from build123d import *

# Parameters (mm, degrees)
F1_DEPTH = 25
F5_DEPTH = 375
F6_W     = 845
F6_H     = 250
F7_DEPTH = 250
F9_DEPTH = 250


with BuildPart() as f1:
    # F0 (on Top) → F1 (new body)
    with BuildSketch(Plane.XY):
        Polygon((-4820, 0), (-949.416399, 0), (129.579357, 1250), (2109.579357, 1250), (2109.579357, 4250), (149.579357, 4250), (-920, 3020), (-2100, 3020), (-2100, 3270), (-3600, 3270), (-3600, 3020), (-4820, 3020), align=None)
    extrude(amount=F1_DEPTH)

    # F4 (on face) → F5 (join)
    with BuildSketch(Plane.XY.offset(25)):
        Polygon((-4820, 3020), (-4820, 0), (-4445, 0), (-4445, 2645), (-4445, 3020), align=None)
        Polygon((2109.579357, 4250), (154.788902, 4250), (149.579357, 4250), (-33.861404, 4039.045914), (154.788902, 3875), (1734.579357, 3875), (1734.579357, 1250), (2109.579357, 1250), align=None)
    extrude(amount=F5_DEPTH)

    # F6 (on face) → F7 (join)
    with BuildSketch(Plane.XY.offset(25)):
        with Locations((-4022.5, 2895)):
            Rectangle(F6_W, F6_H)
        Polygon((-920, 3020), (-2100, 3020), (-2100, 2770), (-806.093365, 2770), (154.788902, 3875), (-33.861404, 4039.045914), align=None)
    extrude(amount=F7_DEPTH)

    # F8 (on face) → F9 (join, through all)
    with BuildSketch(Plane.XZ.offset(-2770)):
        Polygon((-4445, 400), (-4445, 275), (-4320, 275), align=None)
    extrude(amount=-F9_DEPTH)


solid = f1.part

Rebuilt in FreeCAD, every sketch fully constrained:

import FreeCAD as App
import Part
import Sketcher

doc = App.newDocument("Part")
body = doc.addObject("PartDesign::Body", "Body")

# Sketch on XY plane
sketch1 = body.newObject("Sketcher::SketchObject", "Sketch")
sketch1.AttachmentSupport = (doc.getObject("XY_Plane"), [""])
sketch1.MapMode = "FlatFace"
sketch1.addGeometry([
    Part.LineSegment(App.Vector(-4820, 0, 0), App.Vector(-949.416399, 0, 0)),  # 0
    Part.LineSegment(App.Vector(-949.416399, 0, 0), App.Vector(129.579357, 1250, 0)),  # 1
    Part.LineSegment(App.Vector(129.579357, 1250, 0), App.Vector(2109.579357, 1250, 0)),  # 2
    Part.LineSegment(App.Vector(2109.579357, 1250, 0), App.Vector(2109.579357, 4250, 0)),  # 3
    Part.LineSegment(App.Vector(2109.579357, 4250, 0), App.Vector(149.579357, 4250, 0)),  # 4
    Part.LineSegment(App.Vector(149.579357, 4250, 0), App.Vector(-920, 3020, 0)),  # 5
    Part.LineSegment(App.Vector(-920, 3020, 0), App.Vector(-2100, 3020, 0)),  # 6
    Part.LineSegment(App.Vector(-2100, 3020, 0), App.Vector(-2100, 3270, 0)),  # 7
    Part.LineSegment(App.Vector(-2100, 3270, 0), App.Vector(-3600, 3270, 0)),  # 8
    Part.LineSegment(App.Vector(-3600, 3270, 0), App.Vector(-3600, 3020, 0)),  # 9
    Part.LineSegment(App.Vector(-3600, 3020, 0), App.Vector(-4820, 3020, 0)),  # 10
    Part.LineSegment(App.Vector(-4820, 3020, 0), App.Vector(-4820, 0, 0)),  # 11
], False)
sketch1.addConstraint([
    Sketcher.Constraint("Coincident", 0, 2, 1, 1),
    Sketcher.Constraint("Coincident", 1, 2, 2, 1),
    Sketcher.Constraint("Coincident", 2, 2, 3, 1),
    Sketcher.Constraint("Coincident", 3, 2, 4, 1),
    Sketcher.Constraint("Coincident", 4, 2, 5, 1),
    Sketcher.Constraint("Coincident", 5, 2, 6, 1),
    Sketcher.Constraint("Coincident", 6, 2, 7, 1),
    Sketcher.Constraint("Coincident", 7, 2, 8, 1),
    Sketcher.Constraint("Coincident", 8, 2, 9, 1),
    Sketcher.Constraint("Coincident", 9, 2, 10, 1),
    Sketcher.Constraint("Coincident", 10, 2, 11, 1),
    Sketcher.Constraint("Coincident", 11, 2, 0, 1),
    Sketcher.Constraint("Horizontal", 0),
    Sketcher.Constraint("Horizontal", 2),
    Sketcher.Constraint("Vertical", 3),
    Sketcher.Constraint("Horizontal", 4),
    Sketcher.Constraint("Horizontal", 6),
    Sketcher.Constraint("Vertical", 7),
    Sketcher.Constraint("Horizontal", 8),
    Sketcher.Constraint("Vertical", 9),
    Sketcher.Constraint("Horizontal", 10),
    Sketcher.Constraint("Vertical", 11),
    Sketcher.Constraint("PointOnObject", 0, 2, -1),
    Sketcher.Constraint("Horizontal", 6, 2, 9, 2),
    Sketcher.Constraint("DistanceX", 2, 1, 2, 2, 1980.0),
    Sketcher.Constraint("DistanceX", 4, 2, 4, 1, 1960.0),
    Sketcher.Constraint("DistanceX", 6, 2, 6, 1, 1180.0),
    Sketcher.Constraint("DistanceX", 8, 2, 8, 1, 1500.0),
    Sketcher.Constraint("DistanceX", 10, 2, 10, 1, 1220.0),
    Sketcher.Constraint("DistanceY", 3, 1, 3, 2, 3000.0),
    Sketcher.Constraint("DistanceY", 7, 1, 7, 2, 250.0),
    Sketcher.Constraint("DistanceY", 11, 2, 11, 1, 3020.0),
    Sketcher.Constraint("Distance", 5, 1630.0),
    Sketcher.Constraint("DistanceY", -1, 1, 1, 2, 1250.0),
    Sketcher.Constraint("DistanceX", 5, 2, -1, 1, 920.0),
    Sketcher.Constraint("DistanceX", 0, 1, 0, 2, 3870.583601),
])
pad1 = body.newObject("PartDesign::Pad", "Pad")
pad1.Profile = sketch1
pad1.Length = 25

# Sketch on XY plane
sketch2 = body.newObject("Sketcher::SketchObject", "Sketch001")
sketch2.AttachmentSupport = (doc.getObject("XY_Plane"), [""])
sketch2.MapMode = "FlatFace"
sketch2.AttachmentOffset = App.Placement(App.Vector(0, 0, 25), App.Rotation())
sketch2.addGeometry([
    Part.LineSegment(App.Vector(-4820, 3020, 0), App.Vector(-4820, 0, 0)),  # 0
    Part.LineSegment(App.Vector(-4820, 0, 0), App.Vector(-4445, 0, 0)),  # 1
    Part.LineSegment(App.Vector(-4445, 0, 0), App.Vector(-4445, 3020, 0)),  # 2
    Part.LineSegment(App.Vector(-4445, 3020, 0), App.Vector(-4820, 3020, 0)),  # 3
    Part.LineSegment(App.Vector(2109.579357, 4250, 0), App.Vector(149.579357, 4250, 0)),  # 4
    Part.LineSegment(App.Vector(149.579357, 4250, 0), App.Vector(-33.861404, 4039.045914, 0)),  # 5
    Part.LineSegment(App.Vector(-33.861404, 4039.045914, 0), App.Vector(154.788902, 3875, 0)),  # 6
    Part.LineSegment(App.Vector(154.788902, 3875, 0), App.Vector(1734.579357, 3875, 0)),  # 7
    Part.LineSegment(App.Vector(1734.579357, 3875, 0), App.Vector(1734.579357, 1250, 0)),  # 8
    Part.LineSegment(App.Vector(1734.579357, 1250, 0), App.Vector(2109.579357, 1250, 0)),  # 9
    Part.LineSegment(App.Vector(2109.579357, 1250, 0), App.Vector(2109.579357, 4250, 0)),  # 10
], False)
sketch2.addConstraint([
    Sketcher.Constraint("Coincident", 0, 2, 1, 1),
    Sketcher.Constraint("Coincident", 1, 2, 2, 1),
    Sketcher.Constraint("Coincident", 2, 2, 3, 1),
    Sketcher.Constraint("Coincident", 3, 2, 0, 1),
    Sketcher.Constraint("Coincident", 4, 2, 5, 1),
    Sketcher.Constraint("Coincident", 5, 2, 6, 1),
    Sketcher.Constraint("Coincident", 6, 2, 7, 1),
    Sketcher.Constraint("Coincident", 7, 2, 8, 1),
    Sketcher.Constraint("Coincident", 8, 2, 9, 1),
    Sketcher.Constraint("Coincident", 9, 2, 10, 1),
    Sketcher.Constraint("Coincident", 10, 2, 4, 1),
    Sketcher.Constraint("Vertical", 0),
    Sketcher.Constraint("Horizontal", 1),
    Sketcher.Constraint("Vertical", 2),
    Sketcher.Constraint("Horizontal", 3),
    Sketcher.Constraint("Horizontal", 4),
    Sketcher.Constraint("Horizontal", 7),
    Sketcher.Constraint("Vertical", 8),
    Sketcher.Constraint("Horizontal", 9),
    Sketcher.Constraint("Vertical", 10),
    Sketcher.Constraint("PointOnObject", 0, 2, -1),
    Sketcher.Constraint("Perpendicular", 5, 6),
    Sketcher.Constraint("Equal", 3, 9),
    Sketcher.Constraint("DistanceX", 1, 1, 1, 2, 375.0),
    Sketcher.Constraint("DistanceX", 4, 2, 4, 1, 1960.0),
    Sketcher.Constraint("DistanceY", 0, 2, 0, 1, 3020.0),
    Sketcher.Constraint("DistanceY", 8, 2, 8, 1, 2625.0),
    Sketcher.Constraint("DistanceY", 10, 1, 10, 2, 3000.0),
    Sketcher.Constraint("Distance", 6, 250.0),
    Sketcher.Constraint("DistanceX", 0, 2, -1, 1, 4820.0),
    Sketcher.Constraint("DistanceY", -1, 1, 4, 2, 4250.0),
    Sketcher.Constraint("DistanceX", -1, 1, 6, 2, 154.788902),
    Sketcher.Constraint("Distance", 5, 279.557041),
])
pad2 = body.newObject("PartDesign::Pad", "Pad001")
pad2.Profile = sketch2
pad2.Length = 375

# Sketch on XY plane
sketch3 = body.newObject("Sketcher::SketchObject", "Sketch002")
sketch3.AttachmentSupport = (doc.getObject("XY_Plane"), [""])
sketch3.MapMode = "FlatFace"
sketch3.AttachmentOffset = App.Placement(App.Vector(0, 0, 25), App.Rotation())
sketch3.addGeometry([
    Part.LineSegment(App.Vector(-4445, 3020, 0), App.Vector(-4445, 2770, 0)),  # 0
    Part.LineSegment(App.Vector(-4445, 2770, 0), App.Vector(-3600, 2770, 0)),  # 1
    Part.LineSegment(App.Vector(-3600, 2770, 0), App.Vector(-3600, 3020, 0)),  # 2
    Part.LineSegment(App.Vector(-3600, 3020, 0), App.Vector(-4445, 3020, 0)),  # 3
    Part.LineSegment(App.Vector(-920, 3020, 0), App.Vector(-2100, 3020, 0)),  # 4
    Part.LineSegment(App.Vector(-2100, 3020, 0), App.Vector(-2100, 2770, 0)),  # 5
    Part.LineSegment(App.Vector(-2100, 2770, 0), App.Vector(-806.093365, 2770, 0)),  # 6
    Part.LineSegment(App.Vector(-806.093365, 2770, 0), App.Vector(154.788902, 3875, 0)),  # 7
    Part.LineSegment(App.Vector(154.788902, 3875, 0), App.Vector(-33.861404, 4039.045914, 0)),  # 8
    Part.LineSegment(App.Vector(-33.861404, 4039.045914, 0), App.Vector(-920, 3020, 0)),  # 9
], False)
sketch3.addConstraint([
    Sketcher.Constraint("Coincident", 0, 2, 1, 1),
    Sketcher.Constraint("Coincident", 1, 2, 2, 1),
    Sketcher.Constraint("Coincident", 2, 2, 3, 1),
    Sketcher.Constraint("Coincident", 3, 2, 0, 1),
    Sketcher.Constraint("Coincident", 4, 2, 5, 1),
    Sketcher.Constraint("Coincident", 5, 2, 6, 1),
    Sketcher.Constraint("Coincident", 6, 2, 7, 1),
    Sketcher.Constraint("Coincident", 7, 2, 8, 1),
    Sketcher.Constraint("Coincident", 8, 2, 9, 1),
    Sketcher.Constraint("Coincident", 9, 2, 4, 1),
    Sketcher.Constraint("Vertical", 0),
    Sketcher.Constraint("Horizontal", 1),
    Sketcher.Constraint("Vertical", 2),
    Sketcher.Constraint("Horizontal", 3),
    Sketcher.Constraint("Horizontal", 4),
    Sketcher.Constraint("Vertical", 5),
    Sketcher.Constraint("Horizontal", 6),
    Sketcher.Constraint("Perpendicular", 7, 8),
    Sketcher.Constraint("Perpendicular", 8, 9),
    Sketcher.Constraint("Horizontal", 3, 2, 4, 2),
    Sketcher.Constraint("Horizontal", 1, 2, 5, 2),
    Sketcher.Constraint("DistanceX", 1, 1, 1, 2, 845.0),
    Sketcher.Constraint("DistanceX", 4, 2, 4, 1, 1180.0),
    Sketcher.Constraint("DistanceY", 0, 2, 0, 1, 250.0),
    Sketcher.Constraint("Distance", 8, 250.0),
    Sketcher.Constraint("DistanceX", 0, 2, -1, 1, 4445.0),
    Sketcher.Constraint("DistanceY", -1, 1, 0, 2, 2770.0),
    Sketcher.Constraint("DistanceX", 4, 2, -1, 1, 2100.0),
    Sketcher.Constraint("DistanceY", -1, 1, 7, 2, 3875.0),
    Sketcher.Constraint("DistanceX", -1, 1, 7, 2, 154.788902),
])
pad3 = body.newObject("PartDesign::Pad", "Pad002")
pad3.Profile = sketch3
pad3.Length = 250

# Sketch on XZ plane
sketch4 = body.newObject("Sketcher::SketchObject", "Sketch003")
sketch4.AttachmentSupport = (doc.getObject("XZ_Plane"), [""])
sketch4.MapMode = "FlatFace"
sketch4.AttachmentOffset = App.Placement(App.Vector(0, 0, -2770), App.Rotation())
sketch4.addGeometry([
    Part.LineSegment(App.Vector(-4445, 400, 0), App.Vector(-4445, 275, 0)),
    Part.LineSegment(App.Vector(-4445, 275, 0), App.Vector(-4320, 275, 0)),
    Part.LineSegment(App.Vector(-4320, 275, 0), App.Vector(-4445, 400, 0)),
], False)
sketch4.addConstraint([
    Sketcher.Constraint("Coincident", 0, 2, 1, 1),
    Sketcher.Constraint("Coincident", 1, 2, 2, 1),
    Sketcher.Constraint("Coincident", 2, 2, 0, 1),
    Sketcher.Constraint("Vertical", 0),
    Sketcher.Constraint("Horizontal", 1),
    Sketcher.Constraint("Equal", 1, 0),
    Sketcher.Constraint("DistanceX", 1, 1, 1, 2, 125.0),
    Sketcher.Constraint("DistanceX", 0, 2, -1, 1, 4445.0),
    Sketcher.Constraint("DistanceY", -1, 1, 0, 2, 275.0),
])
pad4 = body.newObject("PartDesign::Pad", "Pad003")
pad4.Profile = sketch4
pad4.Length = 250
pad4.Reversed = True

doc.recompute()
